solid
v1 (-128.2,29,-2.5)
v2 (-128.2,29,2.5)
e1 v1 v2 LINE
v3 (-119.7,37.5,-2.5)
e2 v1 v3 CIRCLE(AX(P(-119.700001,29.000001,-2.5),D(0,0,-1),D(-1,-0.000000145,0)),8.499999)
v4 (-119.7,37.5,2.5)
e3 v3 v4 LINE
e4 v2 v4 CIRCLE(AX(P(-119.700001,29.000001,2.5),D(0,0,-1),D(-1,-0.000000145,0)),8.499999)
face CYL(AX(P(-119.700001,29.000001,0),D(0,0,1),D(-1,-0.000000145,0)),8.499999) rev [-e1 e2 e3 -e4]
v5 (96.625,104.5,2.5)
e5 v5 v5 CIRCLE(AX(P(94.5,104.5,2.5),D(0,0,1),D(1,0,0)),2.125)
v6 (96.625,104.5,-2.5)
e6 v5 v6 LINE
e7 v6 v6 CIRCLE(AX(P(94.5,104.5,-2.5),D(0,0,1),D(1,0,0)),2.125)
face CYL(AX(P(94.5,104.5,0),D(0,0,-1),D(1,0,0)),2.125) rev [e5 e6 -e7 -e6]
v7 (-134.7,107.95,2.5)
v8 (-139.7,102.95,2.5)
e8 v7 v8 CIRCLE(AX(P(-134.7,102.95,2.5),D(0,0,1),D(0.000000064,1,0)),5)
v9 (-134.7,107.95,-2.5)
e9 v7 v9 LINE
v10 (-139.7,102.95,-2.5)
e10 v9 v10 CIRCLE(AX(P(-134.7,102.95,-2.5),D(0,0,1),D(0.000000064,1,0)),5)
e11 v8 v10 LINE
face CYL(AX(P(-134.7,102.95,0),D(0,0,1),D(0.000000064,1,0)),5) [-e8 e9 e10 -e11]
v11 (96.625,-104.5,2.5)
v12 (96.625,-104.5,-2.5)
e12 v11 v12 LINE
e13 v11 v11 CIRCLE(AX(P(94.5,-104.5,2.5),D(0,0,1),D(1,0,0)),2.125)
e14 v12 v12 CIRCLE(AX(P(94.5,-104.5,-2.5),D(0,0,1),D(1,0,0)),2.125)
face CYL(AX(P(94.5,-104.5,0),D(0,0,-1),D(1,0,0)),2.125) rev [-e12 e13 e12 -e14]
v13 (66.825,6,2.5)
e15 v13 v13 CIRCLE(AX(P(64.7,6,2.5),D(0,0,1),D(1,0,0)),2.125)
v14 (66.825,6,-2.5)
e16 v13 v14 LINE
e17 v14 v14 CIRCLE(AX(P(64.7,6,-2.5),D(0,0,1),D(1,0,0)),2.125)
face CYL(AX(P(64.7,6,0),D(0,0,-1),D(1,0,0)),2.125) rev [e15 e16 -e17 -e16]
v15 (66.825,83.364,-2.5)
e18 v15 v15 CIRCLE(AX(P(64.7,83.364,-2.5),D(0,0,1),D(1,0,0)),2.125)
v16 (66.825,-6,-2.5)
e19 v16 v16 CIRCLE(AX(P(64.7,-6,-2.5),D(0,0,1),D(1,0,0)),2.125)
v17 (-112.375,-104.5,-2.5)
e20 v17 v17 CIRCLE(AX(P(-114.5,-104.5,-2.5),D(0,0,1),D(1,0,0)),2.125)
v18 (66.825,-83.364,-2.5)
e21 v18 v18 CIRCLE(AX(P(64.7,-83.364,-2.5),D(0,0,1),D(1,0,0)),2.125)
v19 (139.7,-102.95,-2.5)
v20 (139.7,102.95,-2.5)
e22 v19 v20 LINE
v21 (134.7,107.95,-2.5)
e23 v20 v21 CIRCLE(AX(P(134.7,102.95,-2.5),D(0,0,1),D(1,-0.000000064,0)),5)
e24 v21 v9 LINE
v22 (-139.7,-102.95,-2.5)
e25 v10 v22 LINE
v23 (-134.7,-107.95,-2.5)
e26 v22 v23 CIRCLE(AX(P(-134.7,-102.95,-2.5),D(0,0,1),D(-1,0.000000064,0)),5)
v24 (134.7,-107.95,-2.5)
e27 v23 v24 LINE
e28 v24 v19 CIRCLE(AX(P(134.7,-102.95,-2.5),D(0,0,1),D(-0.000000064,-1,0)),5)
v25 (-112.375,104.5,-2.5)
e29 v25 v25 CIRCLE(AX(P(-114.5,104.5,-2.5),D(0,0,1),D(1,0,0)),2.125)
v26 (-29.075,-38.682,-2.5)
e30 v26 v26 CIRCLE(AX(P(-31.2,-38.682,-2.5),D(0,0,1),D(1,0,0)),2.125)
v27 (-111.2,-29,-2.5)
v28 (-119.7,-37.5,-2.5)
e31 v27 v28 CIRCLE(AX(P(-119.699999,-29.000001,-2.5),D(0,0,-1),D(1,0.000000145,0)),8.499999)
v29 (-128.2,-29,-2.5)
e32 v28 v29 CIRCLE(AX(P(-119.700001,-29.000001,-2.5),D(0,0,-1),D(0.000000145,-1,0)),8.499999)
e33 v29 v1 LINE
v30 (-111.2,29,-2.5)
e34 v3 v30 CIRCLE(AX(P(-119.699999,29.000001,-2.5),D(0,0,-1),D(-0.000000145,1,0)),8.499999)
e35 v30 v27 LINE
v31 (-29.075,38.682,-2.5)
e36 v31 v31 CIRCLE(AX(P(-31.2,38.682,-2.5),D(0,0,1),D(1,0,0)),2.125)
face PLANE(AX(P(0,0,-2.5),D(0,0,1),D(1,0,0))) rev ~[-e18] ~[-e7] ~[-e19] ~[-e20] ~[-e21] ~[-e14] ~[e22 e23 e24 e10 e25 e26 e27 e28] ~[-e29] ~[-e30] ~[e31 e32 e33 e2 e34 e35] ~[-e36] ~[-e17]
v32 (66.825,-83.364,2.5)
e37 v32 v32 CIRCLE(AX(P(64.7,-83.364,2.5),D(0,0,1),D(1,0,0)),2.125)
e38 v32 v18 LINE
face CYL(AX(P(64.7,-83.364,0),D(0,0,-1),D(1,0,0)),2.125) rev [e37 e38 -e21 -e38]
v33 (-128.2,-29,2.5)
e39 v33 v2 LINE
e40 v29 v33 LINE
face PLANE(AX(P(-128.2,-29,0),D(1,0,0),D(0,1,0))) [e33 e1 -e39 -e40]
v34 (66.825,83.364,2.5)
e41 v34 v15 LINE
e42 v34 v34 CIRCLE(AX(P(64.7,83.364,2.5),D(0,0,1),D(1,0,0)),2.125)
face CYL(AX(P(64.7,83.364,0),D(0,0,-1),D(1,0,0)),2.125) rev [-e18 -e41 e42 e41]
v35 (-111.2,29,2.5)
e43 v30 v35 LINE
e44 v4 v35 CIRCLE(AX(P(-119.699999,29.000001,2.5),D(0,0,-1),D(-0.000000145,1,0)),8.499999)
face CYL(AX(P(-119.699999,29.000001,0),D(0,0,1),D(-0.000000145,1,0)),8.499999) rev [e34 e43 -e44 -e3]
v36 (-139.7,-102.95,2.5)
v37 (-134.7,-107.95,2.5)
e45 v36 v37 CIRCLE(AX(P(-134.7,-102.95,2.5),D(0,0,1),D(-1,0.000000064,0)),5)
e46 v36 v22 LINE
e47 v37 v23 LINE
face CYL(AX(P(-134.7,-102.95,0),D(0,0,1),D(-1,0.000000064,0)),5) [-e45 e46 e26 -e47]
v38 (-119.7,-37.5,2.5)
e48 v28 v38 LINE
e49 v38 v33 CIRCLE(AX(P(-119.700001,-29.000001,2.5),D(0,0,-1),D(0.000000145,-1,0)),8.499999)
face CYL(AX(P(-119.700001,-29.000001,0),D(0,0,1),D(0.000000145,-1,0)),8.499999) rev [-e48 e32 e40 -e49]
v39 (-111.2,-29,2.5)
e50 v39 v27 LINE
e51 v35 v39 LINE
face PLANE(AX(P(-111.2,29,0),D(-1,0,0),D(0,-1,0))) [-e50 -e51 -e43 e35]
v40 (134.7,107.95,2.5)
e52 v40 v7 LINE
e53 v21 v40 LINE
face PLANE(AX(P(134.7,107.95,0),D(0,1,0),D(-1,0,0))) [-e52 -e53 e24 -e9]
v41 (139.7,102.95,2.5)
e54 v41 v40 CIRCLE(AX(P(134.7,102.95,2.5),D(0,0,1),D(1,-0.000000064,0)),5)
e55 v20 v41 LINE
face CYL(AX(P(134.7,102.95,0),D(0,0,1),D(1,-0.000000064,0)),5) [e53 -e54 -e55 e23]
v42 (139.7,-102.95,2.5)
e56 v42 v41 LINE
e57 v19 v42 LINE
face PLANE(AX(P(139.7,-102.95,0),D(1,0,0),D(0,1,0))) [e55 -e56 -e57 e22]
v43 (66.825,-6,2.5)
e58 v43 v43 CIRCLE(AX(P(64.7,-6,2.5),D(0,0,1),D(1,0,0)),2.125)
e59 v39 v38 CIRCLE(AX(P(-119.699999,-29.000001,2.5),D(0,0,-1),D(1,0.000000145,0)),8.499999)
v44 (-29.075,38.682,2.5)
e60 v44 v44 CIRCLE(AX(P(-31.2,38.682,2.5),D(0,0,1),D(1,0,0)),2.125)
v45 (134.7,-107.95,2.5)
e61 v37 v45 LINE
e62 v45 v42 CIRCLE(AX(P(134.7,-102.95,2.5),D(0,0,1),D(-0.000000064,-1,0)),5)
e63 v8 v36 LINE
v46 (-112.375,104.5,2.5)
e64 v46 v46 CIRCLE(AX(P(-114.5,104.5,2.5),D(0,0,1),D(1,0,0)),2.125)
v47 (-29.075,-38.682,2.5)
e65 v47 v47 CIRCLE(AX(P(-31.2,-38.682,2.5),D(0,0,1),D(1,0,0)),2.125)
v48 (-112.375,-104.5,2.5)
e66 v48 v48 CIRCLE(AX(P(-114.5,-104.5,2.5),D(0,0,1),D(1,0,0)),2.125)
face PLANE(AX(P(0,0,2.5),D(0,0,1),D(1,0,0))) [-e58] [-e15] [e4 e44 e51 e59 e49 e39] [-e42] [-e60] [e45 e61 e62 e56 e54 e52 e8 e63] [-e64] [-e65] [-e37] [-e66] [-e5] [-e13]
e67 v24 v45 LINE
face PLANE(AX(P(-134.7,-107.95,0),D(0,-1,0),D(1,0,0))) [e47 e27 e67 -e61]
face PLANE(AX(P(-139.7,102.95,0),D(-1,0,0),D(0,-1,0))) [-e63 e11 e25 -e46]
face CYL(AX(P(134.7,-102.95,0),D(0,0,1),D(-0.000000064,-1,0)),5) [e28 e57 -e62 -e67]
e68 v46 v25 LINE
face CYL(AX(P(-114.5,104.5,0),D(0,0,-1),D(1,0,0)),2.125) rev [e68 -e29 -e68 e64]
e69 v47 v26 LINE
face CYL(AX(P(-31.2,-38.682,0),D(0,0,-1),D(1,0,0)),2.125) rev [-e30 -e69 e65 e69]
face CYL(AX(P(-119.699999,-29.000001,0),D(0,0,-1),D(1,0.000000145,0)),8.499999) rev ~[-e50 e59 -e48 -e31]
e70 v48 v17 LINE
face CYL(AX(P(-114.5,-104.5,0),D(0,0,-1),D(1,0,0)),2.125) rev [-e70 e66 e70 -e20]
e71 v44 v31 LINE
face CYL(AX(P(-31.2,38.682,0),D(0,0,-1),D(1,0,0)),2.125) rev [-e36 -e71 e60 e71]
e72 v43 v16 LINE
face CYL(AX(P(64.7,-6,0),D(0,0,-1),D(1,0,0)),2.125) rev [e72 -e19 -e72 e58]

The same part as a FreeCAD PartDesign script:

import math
import FreeCAD as App
import Part
import Sketcher
from FreeCAD import Vector
Q = App.Units.Quantity

doc = App.newDocument("Part")
body = doc.addObject("PartDesign::Body", "Body")

# Sketch on XY plane
sketch1 = body.newObject("Sketcher::SketchObject", "Sketch")
sketch1.AttachmentSupport = (doc.getObject("XY_Plane"), [""])
sketch1.MapMode = "FlatFace"
sketch1.addGeometry(Part.LineSegment(Vector(-134.7, -108, 0), Vector(134.7, -108, 0)), False)
sketch1.addGeometry(Part.ArcOfCircle(Part.Circle(Vector(134.7, -103, 0), Vector(0, 0, 1), 5), math.radians(-90), math.radians(0)), False)
sketch1.addGeometry(Part.LineSegment(Vector(139.7, -103, 0), Vector(139.7, 103, 0)), False)
sketch1.addGeometry(Part.ArcOfCircle(Part.Circle(Vector(134.7, 103, 0), Vector(0, 0, 1), 5), math.radians(0), math.radians(90)), False)
sketch1.addGeometry(Part.LineSegment(Vector(134.7, 108, 0), Vector(-134.7, 108, 0)), False)
sketch1.addGeometry(Part.ArcOfCircle(Part.Circle(Vector(-134.7, 103, 0), Vector(0, 0, 1), 5), math.radians(90), math.radians(180)), False)
sketch1.addGeometry(Part.LineSegment(Vector(-139.7, 103, 0), Vector(-139.7, -103, 0)), False)
sketch1.addGeometry(Part.ArcOfCircle(Part.Circle(Vector(-134.7, -103, 0), Vector(0, 0, 1), 5), math.radians(180), math.radians(270)), False)
sketch1.addGeometry(Part.Circle(Vector(-114.5, -104.5, 0), Vector(0, 0, 1), 2.1), False)
sketch1.addGeometry(Part.ArcOfCircle(Part.Circle(Vector(-119.7, 29, 0), Vector(0, 0, 1), 8.5), math.radians(90), math.radians(180)), False)
sketch1.addGeometry(Part.ArcOfCircle(Part.Circle(Vector(-119.7, 29, 0), Vector(0, 0, 1), 8.5), math.radians(0), math.radians(90)), False)
sketch1.addGeometry(Part.LineSegment(Vector(-111.2, 29, 0), Vector(-111.2, -29, 0)), False)
sketch1.addGeometry(Part.ArcOfCircle(Part.Circle(Vector(-119.7, -29, 0), Vector(0, 0, 1), 8.5), math.radians(-90), math.radians(0)), False)
sketch1.addGeometry(Part.ArcOfCircle(Part.Circle(Vector(-119.7, -29, 0), Vector(0, 0, 1), 8.5), math.radians(180), math.radians(270)), False)
sketch1.addGeometry(Part.LineSegment(Vector(-128.2, -29, 0), Vector(-128.2, 29, 0)), False)
sketch1.addGeometry(Part.Circle(Vector(-31.2, -38.7, 0), Vector(0, 0, 1), 2.1), False)
sketch1.addGeometry(Part.Circle(Vector(64.7, -83.4, 0), Vector(0, 0, 1), 2.1), False)
sketch1.addGeometry(Part.Circle(Vector(94.5, -104.5, 0), Vector(0, 0, 1), 2.1), False)
sketch1.addGeometry(Part.Circle(Vector(64.7, -6, 0), Vector(0, 0, 1), 2.1), False)
sketch1.addGeometry(Part.Circle(Vector(-31.2, 38.7, 0), Vector(0, 0, 1), 2.1), False)
sketch1.addGeometry(Part.Circle(Vector(-114.5, 104.5, 0), Vector(0, 0, 1), 2.1), False)
sketch1.addGeometry(Part.Circle(Vector(64.7, 6, 0), Vector(0, 0, 1), 2.1), False)
sketch1.addGeometry(Part.Circle(Vector(64.7, 83.4, 0), Vector(0, 0, 1), 2.1), False)
sketch1.addGeometry(Part.Circle(Vector(94.5, 104.5, 0), Vector(0, 0, 1), 2.1), False)
sketch1.addConstraint(Sketcher.Constraint("Tangent", 0, 2, 1, 1))
sketch1.addConstraint(Sketcher.Constraint("Tangent", 1, 2, 2, 1))
sketch1.addConstraint(Sketcher.Constraint("Tangent", 2, 2, 3, 1))
sketch1.addConstraint(Sketcher.Constraint("Tangent", 3, 2, 4, 1))
sketch1.addConstraint(Sketcher.Constraint("Tangent", 4, 2, 5, 1))
sketch1.addConstraint(Sketcher.Constraint("Tangent", 5, 2, 6, 1))
sketch1.addConstraint(Sketcher.Constraint("Tangent", 6, 2, 7, 1))
sketch1.addConstraint(Sketcher.Constraint("Tangent", 7, 2, 0, 1))
sketch1.addConstraint(Sketcher.Constraint("Tangent", 9, 1, 10, 2))
sketch1.addConstraint(Sketcher.Constraint("Tangent", 10, 1, 11, 1))
sketch1.addConstraint(Sketcher.Constraint("Tangent", 11, 2, 12, 2))
sketch1.addConstraint(Sketcher.Constraint("Tangent", 12, 1, 13, 2))
sketch1.addConstraint(Sketcher.Constraint("Tangent", 13, 1, 14, 1))
sketch1.addConstraint(Sketcher.Constraint("Tangent", 14, 2, 9, 2))
sketch1.addConstraint(Sketcher.Constraint("Horizontal", 0))
sketch1.addConstraint(Sketcher.Constraint("Vertical", 2))
sketch1.addConstraint(Sketcher.Constraint("Horizontal", 4))
sketch1.addConstraint(Sketcher.Constraint("Vertical", 6))
sketch1.addConstraint(Sketcher.Constraint("Vertical", 11))
sketch1.addConstraint(Sketcher.Constraint("Vertical", 14))
sketch1.addConstraint(Sketcher.Constraint("Equal", 1, 3))
sketch1.addConstraint(Sketcher.Constraint("Equal", 3, 5))
sketch1.addConstraint(Sketcher.Constraint("Equal", 5, 7))
sketch1.addConstraint(Sketcher.Constraint("Equal", 9, 10))
sketch1.addConstraint(Sketcher.Constraint("Equal", 10, 12))
sketch1.addConstraint(Sketcher.Constraint("Equal", 8, 15))
sketch1.addConstraint(Sketcher.Constraint("Equal", 15, 16))
sketch1.addConstraint(Sketcher.Constraint("Equal", 16, 17))
sketch1.addConstraint(Sketcher.Constraint("Equal", 17, 18))
sketch1.addConstraint(Sketcher.Constraint("Equal", 18, 19))
sketch1.addConstraint(Sketcher.Constraint("Equal", 19, 20))
sketch1.addConstraint(Sketcher.Constraint("Equal", 20, 21))
sketch1.addConstraint(Sketcher.Constraint("Equal", 21, 22))
sketch1.addConstraint(Sketcher.Constraint("Equal", 22, 23))
sketch1.addConstraint(Sketcher.Constraint("Symmetric", 1, 3, 5, 3, -1, 1))
sketch1.addConstraint(Sketcher.Constraint("Symmetric", 15, 3, 19, 3, -1))
sketch1.addConstraint(Sketcher.Constraint("Symmetric", 8, 3, 20, 3, -1))
sketch1.addConstraint(Sketcher.Constraint("Symmetric", 18, 3, 21, 3, -1))
sketch1.addConstraint(Sketcher.Constraint("Symmetric", 16, 3, 22, 3, -1))
sketch1.addConstraint(Sketcher.Constraint("Symmetric", 17, 3, 23, 3, -1))
sketch1.addConstraint(Sketcher.Constraint("Symmetric", 9, 1, 12, 1, -1))
sketch1.addConstraint(Sketcher.Constraint("Horizontal", 8, 3, 17, 3))
sketch1.addConstraint(Sketcher.Constraint("Vertical", 16, 3, 18, 3))
sketch1.addConstraint(Sketcher.Constraint("Vertical", 13, 3, 9, 1))
sketch1.addConstraint(Sketcher.Constraint("Radius", 1, Q("5 mm")))
sketch1.addConstraint(Sketcher.Constraint("Radius", 9, Q("8.499999 mm")))
sketch1.addConstraint(Sketcher.Constraint("Diameter", 8, Q("4.25 mm")))
sketch1.addConstraint(Sketcher.Constraint("DistanceY", 11, 2, 11, 1, Q("58 mm")))
sketch1.addConstraint(Sketcher.Constraint("DistanceX", 0, 1, 0, 2, Q("269.4 mm")))
sketch1.addConstraint(Sketcher.Constraint("DistanceY", 2, 1, 2, 2, Q("205.9 mm")))
sketch1.addConstraint(Sketcher.Constraint("DistanceY", 18, 3, -1, 1, Q("6 mm")))
sketch1.addConstraint(Sketcher.Constraint("DistanceX", 5, 3, 9, 3, Q("14.999999 mm")))
sketch1.addConstraint(Sketcher.Constraint("DistanceX", 16, 3, 1, 3, Q("70 mm")))
sketch1.addConstraint(Sketcher.Constraint("DistanceX", 8, 3, 17, 3, Q("209 mm")))
sketch1.addConstraint(Sketcher.Constraint("DistanceX", 8, 3, -1, 1, Q("114.5 mm")))
sketch1.addConstraint(Sketcher.Constraint("DistanceY", 8, 3, -1, 1, Q("104.5 mm")))
sketch1.addConstraint(Sketcher.Constraint("DistanceX", 15, 3, -1, 1, Q("31.2 mm")))
sketch1.addConstraint(Sketcher.Constraint("DistanceY", 15, 3, -1, 1, Q("38.682 mm")))
sketch1.addConstraint(Sketcher.Constraint("DistanceY", 16, 3, -1, 1, Q("83.364 mm")))
pad1 = body.newObject("PartDesign::Pad", "Pad")
pad1.Profile = sketch1
pad1.Length = 5
pad1.Midplane = True

doc.recompute()
